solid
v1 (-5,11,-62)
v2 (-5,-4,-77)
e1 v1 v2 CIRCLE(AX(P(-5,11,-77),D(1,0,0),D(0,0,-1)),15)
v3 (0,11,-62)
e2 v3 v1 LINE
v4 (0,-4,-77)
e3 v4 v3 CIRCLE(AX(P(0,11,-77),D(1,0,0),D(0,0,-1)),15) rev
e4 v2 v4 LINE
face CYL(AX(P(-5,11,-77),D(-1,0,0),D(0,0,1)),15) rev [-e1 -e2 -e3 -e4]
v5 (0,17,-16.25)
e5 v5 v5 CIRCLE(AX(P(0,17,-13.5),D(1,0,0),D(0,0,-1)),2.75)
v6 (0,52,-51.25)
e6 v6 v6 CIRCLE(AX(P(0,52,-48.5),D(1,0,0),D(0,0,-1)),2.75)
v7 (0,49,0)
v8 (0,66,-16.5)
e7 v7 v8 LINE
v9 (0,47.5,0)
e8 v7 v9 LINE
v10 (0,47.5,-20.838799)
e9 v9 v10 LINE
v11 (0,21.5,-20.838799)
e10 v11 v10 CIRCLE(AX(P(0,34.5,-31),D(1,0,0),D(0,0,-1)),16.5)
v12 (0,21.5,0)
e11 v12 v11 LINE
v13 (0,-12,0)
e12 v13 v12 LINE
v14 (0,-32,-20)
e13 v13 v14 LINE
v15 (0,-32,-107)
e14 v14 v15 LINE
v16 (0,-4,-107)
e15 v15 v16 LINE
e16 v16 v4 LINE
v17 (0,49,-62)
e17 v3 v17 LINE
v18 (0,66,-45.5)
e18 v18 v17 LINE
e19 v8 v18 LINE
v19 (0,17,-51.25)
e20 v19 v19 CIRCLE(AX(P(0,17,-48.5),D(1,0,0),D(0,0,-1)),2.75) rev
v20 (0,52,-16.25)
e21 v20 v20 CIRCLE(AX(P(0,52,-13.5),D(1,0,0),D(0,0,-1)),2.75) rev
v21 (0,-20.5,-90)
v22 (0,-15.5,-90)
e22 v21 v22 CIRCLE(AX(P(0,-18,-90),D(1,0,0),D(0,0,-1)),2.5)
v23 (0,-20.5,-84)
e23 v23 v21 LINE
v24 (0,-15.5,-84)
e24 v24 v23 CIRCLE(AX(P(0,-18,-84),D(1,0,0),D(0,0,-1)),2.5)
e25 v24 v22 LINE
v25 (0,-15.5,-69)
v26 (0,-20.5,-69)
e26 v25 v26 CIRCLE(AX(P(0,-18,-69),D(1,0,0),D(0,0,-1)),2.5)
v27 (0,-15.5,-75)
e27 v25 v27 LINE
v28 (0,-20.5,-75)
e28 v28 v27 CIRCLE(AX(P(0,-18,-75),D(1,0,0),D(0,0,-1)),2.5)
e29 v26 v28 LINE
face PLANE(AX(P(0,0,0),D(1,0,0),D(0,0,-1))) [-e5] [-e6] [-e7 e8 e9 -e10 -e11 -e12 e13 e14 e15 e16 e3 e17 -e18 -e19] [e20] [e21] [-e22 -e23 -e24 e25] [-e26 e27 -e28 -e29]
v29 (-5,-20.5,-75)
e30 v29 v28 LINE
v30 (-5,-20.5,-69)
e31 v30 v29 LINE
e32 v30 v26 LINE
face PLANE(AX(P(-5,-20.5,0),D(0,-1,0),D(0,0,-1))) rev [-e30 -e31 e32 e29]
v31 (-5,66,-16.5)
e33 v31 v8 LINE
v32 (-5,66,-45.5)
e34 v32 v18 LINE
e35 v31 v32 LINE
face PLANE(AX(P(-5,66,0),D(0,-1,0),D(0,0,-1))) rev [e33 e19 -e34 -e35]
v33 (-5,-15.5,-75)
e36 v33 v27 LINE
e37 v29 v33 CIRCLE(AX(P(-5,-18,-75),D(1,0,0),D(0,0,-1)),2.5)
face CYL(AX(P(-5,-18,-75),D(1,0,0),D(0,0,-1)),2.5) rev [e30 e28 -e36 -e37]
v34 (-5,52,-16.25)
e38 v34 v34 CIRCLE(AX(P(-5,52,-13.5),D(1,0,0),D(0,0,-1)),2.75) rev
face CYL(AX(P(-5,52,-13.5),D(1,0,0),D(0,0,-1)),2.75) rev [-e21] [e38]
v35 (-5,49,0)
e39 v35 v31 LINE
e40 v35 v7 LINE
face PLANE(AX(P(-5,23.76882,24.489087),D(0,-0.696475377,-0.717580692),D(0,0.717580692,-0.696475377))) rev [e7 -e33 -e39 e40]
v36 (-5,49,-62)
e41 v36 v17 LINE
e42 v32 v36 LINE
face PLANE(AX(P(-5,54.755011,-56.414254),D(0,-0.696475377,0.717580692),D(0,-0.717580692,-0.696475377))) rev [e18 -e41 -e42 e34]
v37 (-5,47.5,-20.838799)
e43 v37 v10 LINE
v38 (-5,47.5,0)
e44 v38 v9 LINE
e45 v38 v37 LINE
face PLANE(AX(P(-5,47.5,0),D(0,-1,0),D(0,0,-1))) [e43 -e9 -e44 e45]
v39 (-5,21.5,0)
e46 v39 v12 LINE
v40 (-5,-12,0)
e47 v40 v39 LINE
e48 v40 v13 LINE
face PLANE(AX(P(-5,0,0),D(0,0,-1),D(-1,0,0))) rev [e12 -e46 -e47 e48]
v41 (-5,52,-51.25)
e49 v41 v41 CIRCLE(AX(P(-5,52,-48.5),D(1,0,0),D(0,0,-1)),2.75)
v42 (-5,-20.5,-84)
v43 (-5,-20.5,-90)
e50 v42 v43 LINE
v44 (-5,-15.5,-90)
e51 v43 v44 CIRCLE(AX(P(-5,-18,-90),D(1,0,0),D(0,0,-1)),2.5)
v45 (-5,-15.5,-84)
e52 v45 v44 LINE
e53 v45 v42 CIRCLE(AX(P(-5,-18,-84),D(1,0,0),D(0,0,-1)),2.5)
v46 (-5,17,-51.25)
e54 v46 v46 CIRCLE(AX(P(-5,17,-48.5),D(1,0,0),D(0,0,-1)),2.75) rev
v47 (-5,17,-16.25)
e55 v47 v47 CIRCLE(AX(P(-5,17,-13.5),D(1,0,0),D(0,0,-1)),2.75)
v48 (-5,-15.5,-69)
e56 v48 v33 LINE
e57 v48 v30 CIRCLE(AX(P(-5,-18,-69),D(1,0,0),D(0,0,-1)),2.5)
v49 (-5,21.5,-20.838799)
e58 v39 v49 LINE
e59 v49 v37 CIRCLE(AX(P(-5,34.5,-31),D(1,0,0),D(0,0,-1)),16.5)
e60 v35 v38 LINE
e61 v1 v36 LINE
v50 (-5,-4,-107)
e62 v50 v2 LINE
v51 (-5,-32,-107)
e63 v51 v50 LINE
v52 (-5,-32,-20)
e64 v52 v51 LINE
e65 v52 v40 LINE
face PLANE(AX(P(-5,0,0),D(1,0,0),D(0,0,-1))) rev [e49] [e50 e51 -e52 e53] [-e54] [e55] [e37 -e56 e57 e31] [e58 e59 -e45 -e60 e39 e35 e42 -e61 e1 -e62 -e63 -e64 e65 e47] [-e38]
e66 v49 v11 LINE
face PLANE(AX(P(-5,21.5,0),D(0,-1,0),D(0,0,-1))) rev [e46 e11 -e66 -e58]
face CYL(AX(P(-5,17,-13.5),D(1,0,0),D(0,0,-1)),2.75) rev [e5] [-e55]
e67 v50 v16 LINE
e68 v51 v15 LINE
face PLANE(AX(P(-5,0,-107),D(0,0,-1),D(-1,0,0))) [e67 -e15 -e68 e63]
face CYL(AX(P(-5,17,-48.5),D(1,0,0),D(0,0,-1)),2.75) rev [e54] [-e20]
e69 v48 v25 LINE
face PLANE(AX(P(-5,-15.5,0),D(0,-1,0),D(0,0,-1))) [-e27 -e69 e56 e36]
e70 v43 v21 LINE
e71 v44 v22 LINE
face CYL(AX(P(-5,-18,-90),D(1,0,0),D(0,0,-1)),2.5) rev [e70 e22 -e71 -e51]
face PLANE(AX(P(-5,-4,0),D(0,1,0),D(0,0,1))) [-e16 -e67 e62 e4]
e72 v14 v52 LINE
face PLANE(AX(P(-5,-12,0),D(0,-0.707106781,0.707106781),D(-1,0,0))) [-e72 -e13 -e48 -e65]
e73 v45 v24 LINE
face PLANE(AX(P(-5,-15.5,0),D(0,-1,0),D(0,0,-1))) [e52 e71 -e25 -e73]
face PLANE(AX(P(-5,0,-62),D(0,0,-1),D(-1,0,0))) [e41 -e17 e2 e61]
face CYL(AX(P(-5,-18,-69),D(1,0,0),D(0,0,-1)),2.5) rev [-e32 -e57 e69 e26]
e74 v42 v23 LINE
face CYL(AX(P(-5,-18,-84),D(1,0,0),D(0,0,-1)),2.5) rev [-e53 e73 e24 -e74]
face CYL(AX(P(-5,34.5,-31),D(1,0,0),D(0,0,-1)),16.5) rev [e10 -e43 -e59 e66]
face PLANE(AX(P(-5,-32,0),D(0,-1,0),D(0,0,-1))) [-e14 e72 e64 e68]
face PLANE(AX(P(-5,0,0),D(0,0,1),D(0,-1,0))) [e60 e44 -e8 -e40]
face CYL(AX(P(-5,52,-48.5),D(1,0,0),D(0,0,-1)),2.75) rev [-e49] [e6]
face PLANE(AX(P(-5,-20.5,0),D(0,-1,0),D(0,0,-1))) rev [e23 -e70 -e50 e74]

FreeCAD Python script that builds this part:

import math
import FreeCAD as App
import Part
import Sketcher


def edges_at(feature, points):
    """Names of the edges that pass closest to the given points."""
    edges = feature.Shape.Edges
    near = lambda p: min(range(len(edges)), key=lambda i: edges[i].distToShape(Part.Vertex(*p))[0])
    return sorted({f"Edge{near(p) + 1}" for p in points})

doc = App.newDocument("Part")
params = doc.addObject("Spreadsheet::Sheet", "Params")
for row, (alias, value) in enumerate([
    ("sketch1_diameter", "5.5 mm"),
    ("sketch1_radius", "16.5 mm"),
    ("sketch1_radius2", "2.5 mm"),
    ("sketch1_width", "28 mm"),
    ("sketch1_width2", "53 mm"),
    ("pad1_length", "5 mm"),
    ("fillet_radius", "15 mm"),
    ("chamfer_size", "20 mm"),
], start=1):
    params.set(f"A{row}", alias)
    params.set(f"B{row}", "=" + value)
    params.setAlias(f"B{row}", alias)

body = doc.addObject("PartDesign::Body", "Body")

# Sketch on YZ plane
sketch1 = doc.addObject("Sketcher::SketchObject", "Sketch")
body.addObject(sketch1)
sketch1.AttachmentSupport = (doc.YZ_Plane, [""])
sketch1.MapMode = "FlatFace"
sketch1.addGeometry([
    Part.LineSegment(App.Vector(66, -16.5, 0), App.Vector(49, 0, 0)),  # 0
    Part.LineSegment(App.Vector(49, 0, 0), App.Vector(47.5, 0, 0)),  # 1
    Part.LineSegment(App.Vector(47.5, 0, 0), App.Vector(47.5, -20.8, 0)),  # 2
    Part.ArcOfCircle(Part.Circle(App.Vector(34.5, -31, 0), App.Vector(0, 0, 1), 16.5), math.radians(142), math.radians(398)),  # 3
    Part.LineSegment(App.Vector(21.5, -20.8, 0), App.Vector(21.5, 0, 0)),  # 4
    Part.LineSegment(App.Vector(21.5, 0, 0), App.Vector(-32, 0, 0)),  # 5
    Part.LineSegment(App.Vector(-32, 0, 0), App.Vector(-32, -107, 0)),  # 6
    Part.LineSegment(App.Vector(-32, -107, 0), App.Vector(-4, -107, 0)),  # 7
    Part.LineSegment(App.Vector(-4, -107, 0), App.Vector(-4, -62, 0)),  # 8
    Part.LineSegment(App.Vector(-4, -62, 0), App.Vector(49, -62, 0)),  # 9
    Part.LineSegment(App.Vector(49, -62, 0), App.Vector(66, -45.5, 0)),  # 10
    Part.LineSegment(App.Vector(66, -45.5, 0), App.Vector(66, -16.5, 0)),  # 11
    Part.LineSegment(App.Vector(-15.5, -84, 0), App.Vector(-15.5, -90, 0)),  # 12
    Part.ArcOfCircle(Part.Circle(App.Vector(-18, -90, 0), App.Vector(0, 0, 1), 2.5), math.radians(180), math.radians(360)),  # 13
    Part.LineSegment(App.Vector(-20.5, -90, 0), App.Vector(-20.5, -84, 0)),  # 14
    Part.ArcOfCircle(Part.Circle(App.Vector(-18, -84, 0), App.Vector(0, 0, 1), 2.5), math.radians(0), math.radians(180)),  # 15
    Part.LineSegment(App.Vector(-15.5, -69, 0), App.Vector(-15.5, -75, 0)),  # 16
    Part.ArcOfCircle(Part.Circle(App.Vector(-18, -75, 0), App.Vector(0, 0, 1), 2.5), math.radians(180), math.radians(360)),  # 17
    Part.LineSegment(App.Vector(-20.5, -75, 0), App.Vector(-20.5, -69, 0)),  # 18
    Part.ArcOfCircle(Part.Circle(App.Vector(-18, -69, 0), App.Vector(0, 0, 1), 2.5), math.radians(0), math.radians(180)),  # 19
    Part.Circle(App.Vector(17, -48.5, 0), App.Vector(0, 0, 1), 2.8),  # 20
    Part.Circle(App.Vector(17, -13.5, 0), App.Vector(0, 0, 1), 2.8),  # 21
    Part.Circle(App.Vector(52, -48.5, 0), App.Vector(0, 0, 1), 2.8),  # 22
    Part.Circle(App.Vector(52, -13.5, 0), App.Vector(0, 0, 1), 2.8),  # 23
], False)
sketch1.addConstraint([
    Sketcher.Constraint("Coincident", 0, 2, 1, 1),
    Sketcher.Constraint("Coincident", 1, 2, 2, 1),
    Sketcher.Constraint("Coincident", 2, 2, 3, 2),
    Sketcher.Constraint("Coincident", 3, 1, 4, 1),
    Sketcher.Constraint("Coincident", 4, 2, 5, 1),
    Sketcher.Constraint("Coincident", 5, 2, 6, 1),
    Sketcher.Constraint("Coincident", 6, 2, 7, 1),
    Sketcher.Constraint("Coincident", 7, 2, 8, 1),
    Sketcher.Constraint("Coincident", 8, 2, 9, 1),
    Sketcher.Constraint("Coincident", 9, 2, 10, 1),
    Sketcher.Constraint("Coincident", 10, 2, 11, 1),
    Sketcher.Constraint("Coincident", 11, 2, 0, 1),
    Sketcher.Constraint("Tangent", 12, 2, 13, 2),
    Sketcher.Constraint("Tangent", 13, 1, 14, 1),
    Sketcher.Constraint("Tangent", 14, 2, 15, 2),
    Sketcher.Constraint("Tangent", 15, 1, 12, 1),
    Sketcher.Constraint("Tangent", 16, 2, 17, 2),
    Sketcher.Constraint("Tangent", 17, 1, 18, 1),
    Sketcher.Constraint("Tangent", 18, 2, 19, 2),
    Sketcher.Constraint("Tangent", 19, 1, 16, 1),
    Sketcher.Constraint("Horizontal", 1),
    Sketcher.Constraint("Vertical", 2),
    Sketcher.Constraint("Vertical", 4),
    Sketcher.Constraint("Horizontal", 5),
    Sketcher.Constraint("Vertical", 6),
    Sketcher.Constraint("Horizontal", 7),
    Sketcher.Constraint("Vertical", 8),
    Sketcher.Constraint("Horizontal", 9),
    Sketcher.Constraint("Vertical", 11),
    Sketcher.Constraint("Vertical", 12),
    Sketcher.Constraint("Vertical", 14),
    Sketcher.Constraint("Vertical", 16),
    Sketcher.Constraint("Vertical", 18),
    Sketcher.Constraint("Equal", 15, 17),
    Sketcher.Constraint("Equal", 20, 21),
    Sketcher.Constraint("Equal", 21, 22),
    Sketcher.Constraint("Equal", 22, 23),
    Sketcher.Constraint("PointOnObject", 0, 2, -1),
    Sketcher.Constraint("PointOnObject", 4, 2, -1),
    Sketcher.Constraint("Horizontal", 20, 3, 22, 3),
    Sketcher.Constraint("Horizontal", 21, 3, 23, 3),
    Sketcher.Constraint("Horizontal", 2, 2, 3, 1),
    Sketcher.Constraint("Vertical", 15, 3, 17, 3),
    Sketcher.Constraint("Vertical", 20, 3, 21, 3),
    Sketcher.Constraint("Vertical", 22, 3, 23, 3),
    Sketcher.Constraint("Vertical", 0, 2, 9, 2),
    Sketcher.Constraint("Equal", 14, 16),
    Sketcher.Constraint("Equal", 0, 10),
    Sketcher.Constraint("Diameter", 20, 5.5),
    Sketcher.Constraint("Radius", 3, 16.5),
    Sketcher.Constraint("Radius", 13, 2.5),
    Sketcher.Constraint("DistanceX", 7, 1, 7, 2, 28.0),
    Sketcher.Constraint("DistanceX", 9, 1, 9, 2, 53.0),
    Sketcher.Constraint("DistanceY", 6, 2, 6, 1, 107.0),
    Sketcher.Constraint("DistanceY", 8, 1, 8, 2, 45.0),
    Sketcher.Constraint("DistanceY", 11, 1, 11, 2, 29.0),
    Sketcher.Constraint("DistanceY", 12, 2, 12, 1, 6.0),
    Sketcher.Constraint("DistanceX", 1, 2, 1, 1, 1.5),
    Sketcher.Constraint("DistanceX", 5, 2, 5, 1, 53.5),
    Sketcher.Constraint("DistanceY", 3, 3, -1, 1, 31.0),
    Sketcher.Constraint("DistanceX", 13, 3, -1, 1, 18.0),
    Sketcher.Constraint("DistanceY", 13, 3, -1, 1, 90.0),
    Sketcher.Constraint("DistanceY", 17, 3, -1, 1, 75.0),
    Sketcher.Constraint("DistanceX", -1, 1, 20, 3, 17.0),
    Sketcher.Constraint("DistanceX", -1, 1, 22, 3, 52.0),
    Sketcher.Constraint("DistanceX", -1, 1, 0, 2, 49.0),
    Sketcher.Constraint("DistanceX", -1, 1, 10, 2, 66.0),
    Sketcher.Constraint("DistanceY", 20, 3, 21, 3, 35.0),
    Sketcher.Constraint("DistanceY", 22, 3, 10, 2, 3.0),
])
sketch1.setExpression("Constraints[48]", "Params.sketch1_diameter")
sketch1.setExpression("Constraints[49]", "Params.sketch1_radius")
sketch1.setExpression("Constraints[50]", "Params.sketch1_radius2")
sketch1.setExpression("Constraints[51]", "Params.sketch1_width")
sketch1.setExpression("Constraints[52]", "Params.sketch1_width2")
pad1 = doc.addObject("PartDesign::Pad", "Pad")
body.addObject(pad1)
pad1.Profile = sketch1
pad1.setExpression("Length", "Params.pad1_length")
pad1.Reversed = True
doc.recompute()

fillet = doc.addObject("PartDesign::Fillet", "Fillet")
body.addObject(fillet)
fillet.Base = (pad1, edges_at(pad1, [(-2.5, -4, -62)]))
fillet.setExpression("Radius", "Params.fillet_radius")
doc.recompute()

chamfer = doc.addObject("PartDesign::Chamfer", "Chamfer")
body.addObject(chamfer)
chamfer.Base = (fillet, edges_at(fillet, [(-2.5, -32, 0)]))
chamfer.setExpression("Size", "Params.chamfer_size")

doc.recompute()
